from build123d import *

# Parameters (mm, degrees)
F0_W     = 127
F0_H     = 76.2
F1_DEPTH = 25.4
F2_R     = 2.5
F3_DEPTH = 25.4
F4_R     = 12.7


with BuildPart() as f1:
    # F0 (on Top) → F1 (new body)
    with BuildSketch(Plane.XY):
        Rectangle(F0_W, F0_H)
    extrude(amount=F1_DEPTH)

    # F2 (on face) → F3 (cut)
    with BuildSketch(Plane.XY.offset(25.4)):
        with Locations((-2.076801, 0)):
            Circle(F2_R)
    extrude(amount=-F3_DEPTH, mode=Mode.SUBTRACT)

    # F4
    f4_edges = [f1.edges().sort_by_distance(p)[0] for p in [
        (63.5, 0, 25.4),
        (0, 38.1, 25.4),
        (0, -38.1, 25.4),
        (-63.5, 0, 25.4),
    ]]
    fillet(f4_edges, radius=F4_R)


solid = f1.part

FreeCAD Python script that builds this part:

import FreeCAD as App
import Part
import Sketcher
Q = App.Units.Quantity


def edges_at(feature, points):
    """Names of the edges that pass closest to the given points."""
    edges = feature.Shape.Edges
    near = lambda p: min(range(len(edges)), key=lambda i: edges[i].distToShape(Part.Vertex(*p))[0])
    return sorted({f"Edge{near(p) + 1}" for p in points})


def add_polygon(sketch, points):
    """Adds a closed chain of lines whose ends are joined by coincident constraints."""
    first, n = sketch.GeometryCount, len(points)
    for a, b in zip(points, points[1:] + points[:1]):
        sketch.addGeometry(Part.LineSegment(App.Vector(*a, 0), App.Vector(*b, 0)), False)
    for i in range(n):
        sketch.addConstraint(Sketcher.Constraint("Coincident", first + i, 2, first + (i + 1) % n, 1))

doc = App.newDocument("Part")
body = doc.addObject("PartDesign::Body", "Body")

# Sketch on XY plane
sketch1 = body.newObject("Sketcher::SketchObject", "Sketch")
sketch1.AttachmentSupport = (doc.getObject("XY_Plane"), [""])
sketch1.MapMode = "FlatFace"
add_polygon(sketch1, [(-64, 38), (-64, -38), (64, -38), (64, 38)])  # lines 0-3
sketch1.addConstraint([
    Sketcher.Constraint("Vertical", 0),
    Sketcher.Constraint("Horizontal", 1),
    Sketcher.Constraint("Vertical", 2),
    Sketcher.Constraint("Horizontal", 3),
    Sketcher.Constraint("Symmetric", 0, 2, 2, 2, -1, 1),
    Sketcher.Constraint("DistanceX", 1, 1, 1, 2, Q("5 in")),
    Sketcher.Constraint("DistanceY", 0, 2, 0, 1, Q("3 in")),
])
pad1 = body.newObject("PartDesign::Pad", "Pad")
pad1.Profile = sketch1
pad1.Length = Q("1 in")

# Sketch on XY plane
sketch2 = body.newObject("Sketcher::SketchObject", "Sketch001")
sketch2.AttachmentSupport = (doc.getObject("XY_Plane"), [""])
sketch2.MapMode = "FlatFace"
sketch2.AttachmentOffset = App.Placement(App.Vector(0, 0, 1 * 25.4), App.Rotation())
sketch2.addGeometry(Part.Circle(App.Vector(-2.1, 0, 0), App.Vector(0, 0, 1), 2.5), False)
sketch2.addConstraint([
    Sketcher.Constraint("PointOnObject", 0, 3, -1),
    Sketcher.Constraint("Diameter", 0, Q("5 mm")),
    Sketcher.Constraint("DistanceX", 0, 3, -1, 1, Q("2.076801 mm")),
])
pocket1 = body.newObject("PartDesign::Pocket", "Pocket")
pocket1.Profile = sketch2
pocket1.Length = Q("1 in")
doc.recompute()

fillet = body.newObject("PartDesign::Fillet", "Fillet")
fillet.Base = (pocket1, edges_at(pocket1, [
    (63.5, 0, 25.4),
    (0, 38.1, 25.4),
    (0, -38.1, 25.4),
    (-63.5, 0, 25.4),
]))
fillet.Radius = Q("0.5 in")

doc.recompute()
